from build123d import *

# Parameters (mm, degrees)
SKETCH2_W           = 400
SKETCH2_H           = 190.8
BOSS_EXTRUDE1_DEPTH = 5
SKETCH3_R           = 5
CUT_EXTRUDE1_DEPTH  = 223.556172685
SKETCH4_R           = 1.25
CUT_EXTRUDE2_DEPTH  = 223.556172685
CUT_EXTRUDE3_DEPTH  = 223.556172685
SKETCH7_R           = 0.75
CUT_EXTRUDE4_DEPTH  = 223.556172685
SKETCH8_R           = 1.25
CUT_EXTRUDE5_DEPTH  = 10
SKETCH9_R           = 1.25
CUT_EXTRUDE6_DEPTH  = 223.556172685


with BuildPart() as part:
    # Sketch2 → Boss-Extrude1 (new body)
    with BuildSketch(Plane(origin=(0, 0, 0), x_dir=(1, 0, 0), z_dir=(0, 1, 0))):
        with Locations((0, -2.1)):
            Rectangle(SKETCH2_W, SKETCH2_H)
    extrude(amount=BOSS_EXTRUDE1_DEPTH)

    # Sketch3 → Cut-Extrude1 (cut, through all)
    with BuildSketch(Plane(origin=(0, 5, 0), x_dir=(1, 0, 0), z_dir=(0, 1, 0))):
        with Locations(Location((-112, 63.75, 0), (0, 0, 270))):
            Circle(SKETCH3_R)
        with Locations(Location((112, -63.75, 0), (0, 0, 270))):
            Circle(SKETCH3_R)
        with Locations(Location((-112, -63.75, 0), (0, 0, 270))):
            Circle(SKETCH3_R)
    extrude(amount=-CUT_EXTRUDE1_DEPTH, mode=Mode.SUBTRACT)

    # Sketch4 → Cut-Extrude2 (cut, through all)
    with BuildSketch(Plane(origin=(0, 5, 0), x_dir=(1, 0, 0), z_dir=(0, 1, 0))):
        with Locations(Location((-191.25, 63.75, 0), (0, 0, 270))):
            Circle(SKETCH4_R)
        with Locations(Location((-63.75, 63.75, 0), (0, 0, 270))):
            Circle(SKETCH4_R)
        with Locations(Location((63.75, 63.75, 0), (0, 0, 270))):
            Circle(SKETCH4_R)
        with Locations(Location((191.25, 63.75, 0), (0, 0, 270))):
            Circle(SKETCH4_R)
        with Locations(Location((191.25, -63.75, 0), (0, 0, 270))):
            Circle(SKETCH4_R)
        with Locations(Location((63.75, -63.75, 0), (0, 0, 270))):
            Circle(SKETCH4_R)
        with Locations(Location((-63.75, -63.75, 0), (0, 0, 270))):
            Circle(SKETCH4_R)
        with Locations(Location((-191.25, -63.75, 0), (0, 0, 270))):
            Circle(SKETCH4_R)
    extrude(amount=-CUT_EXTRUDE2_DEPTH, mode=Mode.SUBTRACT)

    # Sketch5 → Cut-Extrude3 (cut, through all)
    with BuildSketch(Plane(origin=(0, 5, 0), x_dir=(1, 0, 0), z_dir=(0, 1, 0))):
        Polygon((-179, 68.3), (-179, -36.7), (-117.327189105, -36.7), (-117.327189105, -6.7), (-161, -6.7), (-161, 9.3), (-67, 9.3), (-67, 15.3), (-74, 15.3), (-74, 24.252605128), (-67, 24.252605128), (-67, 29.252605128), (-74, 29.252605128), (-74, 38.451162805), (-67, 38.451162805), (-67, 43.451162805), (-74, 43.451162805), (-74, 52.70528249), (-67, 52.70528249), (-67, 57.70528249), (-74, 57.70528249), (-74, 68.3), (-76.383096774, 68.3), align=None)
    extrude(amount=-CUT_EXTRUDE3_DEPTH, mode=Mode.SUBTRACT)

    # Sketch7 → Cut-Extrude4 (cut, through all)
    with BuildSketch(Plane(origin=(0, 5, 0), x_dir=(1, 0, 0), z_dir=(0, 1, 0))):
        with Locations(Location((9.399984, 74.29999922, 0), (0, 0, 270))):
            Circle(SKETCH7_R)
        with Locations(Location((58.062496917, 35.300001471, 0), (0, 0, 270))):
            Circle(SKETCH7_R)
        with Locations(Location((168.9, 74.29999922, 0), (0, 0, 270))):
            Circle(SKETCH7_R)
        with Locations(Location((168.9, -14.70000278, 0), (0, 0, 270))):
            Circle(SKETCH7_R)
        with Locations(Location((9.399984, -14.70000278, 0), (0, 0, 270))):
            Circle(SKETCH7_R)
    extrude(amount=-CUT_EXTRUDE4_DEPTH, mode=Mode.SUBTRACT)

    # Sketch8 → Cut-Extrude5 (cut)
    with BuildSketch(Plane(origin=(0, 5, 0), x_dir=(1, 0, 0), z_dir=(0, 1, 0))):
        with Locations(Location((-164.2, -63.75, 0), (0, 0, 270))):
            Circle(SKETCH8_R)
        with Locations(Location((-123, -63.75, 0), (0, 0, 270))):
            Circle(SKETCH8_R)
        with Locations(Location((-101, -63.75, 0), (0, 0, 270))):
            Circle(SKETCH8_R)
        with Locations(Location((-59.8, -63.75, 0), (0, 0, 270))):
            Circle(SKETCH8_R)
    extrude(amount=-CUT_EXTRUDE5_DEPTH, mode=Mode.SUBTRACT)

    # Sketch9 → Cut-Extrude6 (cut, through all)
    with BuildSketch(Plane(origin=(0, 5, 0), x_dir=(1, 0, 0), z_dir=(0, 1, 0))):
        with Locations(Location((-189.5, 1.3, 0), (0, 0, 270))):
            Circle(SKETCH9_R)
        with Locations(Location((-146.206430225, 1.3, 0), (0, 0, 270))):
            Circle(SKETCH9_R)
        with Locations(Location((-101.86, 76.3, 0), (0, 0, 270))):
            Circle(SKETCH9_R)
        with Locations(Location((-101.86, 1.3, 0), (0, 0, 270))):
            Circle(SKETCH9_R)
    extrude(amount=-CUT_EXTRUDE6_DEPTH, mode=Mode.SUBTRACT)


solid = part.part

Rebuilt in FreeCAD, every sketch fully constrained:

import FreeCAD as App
import Part
import Sketcher

V = App.Vector

doc = App.newDocument("Part")
body = doc.addObject("PartDesign::Body", "Body")

sketch1 = body.newObject("Sketcher::SketchObject", "Sketch")
sketch1.AttachmentSupport = (doc.getObject("XZ_Plane"), [""])
sketch1.MapMode = "FlatFace"
sketch1.addGeometry([
    Part.LineSegment(V(-200, -93, 0), V(-200, 98, 0)),
    Part.LineSegment(V(-200, 98, 0), V(200, 98, 0)),
    Part.LineSegment(V(200, 98, 0), V(200, -93, 0)),
    Part.LineSegment(V(200, -93, 0), V(-200, -93, 0)),
], False)
sketch1.addConstraint([
    Sketcher.Constraint("Coincident", 0, 2, 1, 1),
    Sketcher.Constraint("Coincident", 1, 2, 2, 1),
    Sketcher.Constraint("Coincident", 2, 2, 3, 1),
    Sketcher.Constraint("Coincident", 3, 2, 0, 1),
    Sketcher.Constraint("Vertical", 0),
    Sketcher.Constraint("Horizontal", 1),
    Sketcher.Constraint("Vertical", 2),
    Sketcher.Constraint("Horizontal", 3),
    Sketcher.Constraint("DistanceX", 1, 1, 1, 2, 400.0),
    Sketcher.Constraint("DistanceY", 0, 1, 0, 2, 190.8),
    Sketcher.Constraint("DistanceX", 0, 2, -1, 1, 200.0),
    Sketcher.Constraint("DistanceY", -1, 1, 0, 2, 97.5),
])
pad1 = body.newObject("PartDesign::Pad", "Pad")
pad1.Profile = sketch1
pad1.Length = 5
pad1.Reversed = True

sketch2 = body.newObject("Sketcher::SketchObject", "Sketch001")
sketch2.AttachmentSupport = (doc.getObject("XZ_Plane"), [""])
sketch2.MapMode = "FlatFace"
sketch2.AttachmentOffset = App.Placement(V(0, 0, -5), App.Rotation())
sketch2.addGeometry([
    Part.Circle(V(-112, -64, 0), V(0, 0, 1), 5),
    Part.Circle(V(112, 64, 0), V(0, 0, 1), 5),
    Part.Circle(V(-112, 64, 0), V(0, 0, 1), 5),
], False)
sketch2.addConstraint([
    Sketcher.Constraint("Equal", 0, 1),
    Sketcher.Constraint("Equal", 1, 2),
    Sketcher.Constraint("Symmetric", 0, 3, 1, 3, -1, 1),
    Sketcher.Constraint("Symmetric", 1, 3, 2, 3, -2),
    Sketcher.Constraint("Diameter", 0, 10.0),
    Sketcher.Constraint("DistanceX", 0, 3, -1, 1, 112.0),
    Sketcher.Constraint("DistanceY", 0, 3, 1, 3, 127.5),
])
pocket1 = body.newObject("PartDesign::Pocket", "Pocket")
pocket1.Profile = sketch2
pocket1.Type = "ThroughAll"
pocket1.Reversed = True

sketch3 = body.newObject("Sketcher::SketchObject", "Sketch002")
sketch3.AttachmentSupport = (doc.getObject("XZ_Plane"), [""])
sketch3.MapMode = "FlatFace"
sketch3.AttachmentOffset = App.Placement(V(0, 0, -5), App.Rotation())
sketch3.addGeometry([
    Part.Circle(V(-191.2, -63.8, 0), V(0, 0, 1), 1.2),
    Part.Circle(V(-63.8, -63.8, 0), V(0, 0, 1), 1.2),
    Part.Circle(V(63.8, -63.8, 0), V(0, 0, 1), 1.2),
    Part.Circle(V(191.2, -63.8, 0), V(0, 0, 1), 1.2),
    Part.Circle(V(191.2, 63.8, 0), V(0, 0, 1), 1.2),
    Part.Circle(V(63.8, 63.8, 0), V(0, 0, 1), 1.2),
    Part.Circle(V(-63.8, 63.8, 0), V(0, 0, 1), 1.2),
    Part.Circle(V(-191.2, 63.8, 0), V(0, 0, 1), 1.2),
], False)
sketch3.addConstraint([
    Sketcher.Constraint("Equal", 0, 1),
    Sketcher.Constraint("Equal", 1, 2),
    Sketcher.Constraint("Equal", 2, 3),
    Sketcher.Constraint("Equal", 3, 4),
    Sketcher.Constraint("Equal", 4, 5),
    Sketcher.Constraint("Equal", 5, 6),
    Sketcher.Constraint("Equal", 6, 7),
    Sketcher.Constraint("Symmetric", 0, 3, 4, 3, -1, 1),
    Sketcher.Constraint("Symmetric", 1, 3, 5, 3, -1, 1),
    Sketcher.Constraint("Symmetric", 2, 3, 6, 3, -1, 1),
    Sketcher.Constraint("Symmetric", 3, 3, 7, 3, -1, 1),
    Sketcher.Constraint("Symmetric", 1, 3, 2, 3, -2),
    Sketcher.Constraint("Symmetric", 0, 3, 3, 3, -2),
    Sketcher.Constraint("Horizontal", 0, 3, 1, 3),
    Sketcher.Constraint("Diameter", 0, 2.5),
    Sketcher.Constraint("DistanceX", 0, 3, 2, 3, 255.0),
    Sketcher.Constraint("DistanceX", 0, 3, 1, 3, 127.5),
    Sketcher.Constraint("DistanceY", 3, 3, 4, 3, 127.5),
])
pocket2 = body.newObject("PartDesign::Pocket", "Pocket001")
pocket2.Profile = sketch3
pocket2.Type = "ThroughAll"
pocket2.Reversed = True

sketch4 = body.newObject("Sketcher::SketchObject", "Sketch003")
sketch4.AttachmentSupport = (doc.getObject("XZ_Plane"), [""])
sketch4.MapMode = "FlatFace"
sketch4.AttachmentOffset = App.Placement(V(0, 0, -5), App.Rotation())
sketch4.addGeometry([
    Part.LineSegment(V(-179, -68, 0), V(-179, 37, 0)),
    Part.LineSegment(V(-179, 37, 0), V(-117, 37, 0)),
    Part.LineSegment(V(-117, 37, 0), V(-117, 7, 0)),
    Part.LineSegment(V(-117, 7, 0), V(-161, 7, 0)),
    Part.LineSegment(V(-161, 7, 0), V(-161, -9, 0)),
    Part.LineSegment(V(-161, -9, 0), V(-67, -9, 0)),
    Part.LineSegment(V(-67, -9, 0), V(-67, -15, 0)),
    Part.LineSegment(V(-67, -15, 0), V(-74, -15, 0)),
    Part.LineSegment(V(-74, -15, 0), V(-74, -24, 0)),
    Part.LineSegment(V(-74, -24, 0), V(-67, -24, 0)),
    Part.LineSegment(V(-67, -24, 0), V(-67, -29, 0)),
    Part.LineSegment(V(-67, -29, 0), V(-74, -29, 0)),
    Part.LineSegment(V(-74, -29, 0), V(-74, -38, 0)),
    Part.LineSegment(V(-74, -38, 0), V(-67, -38, 0)),
    Part.LineSegment(V(-67, -38, 0), V(-67, -43, 0)),
    Part.LineSegment(V(-67, -43, 0), V(-74, -43, 0)),
    Part.LineSegment(V(-74, -43, 0), V(-74, -53, 0)),
    Part.LineSegment(V(-74, -53, 0), V(-67, -53, 0)),
    Part.LineSegment(V(-67, -53, 0), V(-67, -58, 0)),
    Part.LineSegment(V(-67, -58, 0), V(-74, -58, 0)),
    Part.LineSegment(V(-74, -58, 0), V(-74, -68, 0)),
    Part.LineSegment(V(-74, -68, 0), V(-179, -68, 0)),
], False)
sketch4.addConstraint([
    Sketcher.Constraint("Coincident", 0, 2, 1, 1),
    Sketcher.Constraint("Coincident", 1, 2, 2, 1),
    Sketcher.Constraint("Coincident", 2, 2, 3, 1),
    Sketcher.Constraint("Coincident", 3, 2, 4, 1),
    Sketcher.Constraint("Coincident", 4, 2, 5, 1),
    Sketcher.Constraint("Coincident", 5, 2, 6, 1),
    Sketcher.Constraint("Coincident", 6, 2, 7, 1),
    Sketcher.Constraint("Coincident", 7, 2, 8, 1),
    Sketcher.Constraint("Coincident", 8, 2, 9, 1),
    Sketcher.Constraint("Coincident", 9, 2, 10, 1),
    Sketcher.Constraint("Coincident", 10, 2, 11, 1),
    Sketcher.Constraint("Coincident", 11, 2, 12, 1),
    Sketcher.Constraint("Coincident", 12, 2, 13, 1),
    Sketcher.Constraint("Coincident", 13, 2, 14, 1),
    Sketcher.Constraint("Coincident", 14, 2, 15, 1),
    Sketcher.Constraint("Coincident", 15, 2, 16, 1),
    Sketcher.Constraint("Coincident", 16, 2, 17, 1),
    Sketcher.Constraint("Coincident", 17, 2, 18, 1),
    Sketcher.Constraint("Coincident", 18, 2, 19, 1),
    Sketcher.Constraint("Coincident", 19, 2, 20, 1),
    Sketcher.Constraint("Coincident", 20, 2, 21, 1),
    Sketcher.Constraint("Coincident", 21, 2, 0, 1),
    Sketcher.Constraint("Vertical", 0),
    Sketcher.Constraint("Horizontal", 1),
    Sketcher.Constraint("Vertical", 2),
    Sketcher.Constraint("Horizontal", 3),
    Sketcher.Constraint("Vertical", 4),
    Sketcher.Constraint("Horizontal", 5),
    Sketcher.Constraint("Vertical", 6),
    Sketcher.Constraint("Horizontal", 7),
    Sketcher.Constraint("Vertical", 8),
    Sketcher.Constraint("Horizontal", 9),
    Sketcher.Constraint("Vertical", 10),
    Sketcher.Constraint("Horizontal", 11),
    Sketcher.Constraint("Vertical", 12),
    Sketcher.Constraint("Horizontal", 13),
    Sketcher.Constraint("Vertical", 14),
    Sketcher.Constraint("Horizontal", 15),
    Sketcher.Constraint("Vertical", 16),
    Sketcher.Constraint("Horizontal", 17),
    Sketcher.Constraint("Vertical", 18),
    Sketcher.Constraint("Horizontal", 19),
    Sketcher.Constraint("Vertical", 20),
    Sketcher.Constraint("Horizontal", 21),
    Sketcher.Constraint("Vertical", 6, 2, 9, 2),
    Sketcher.Constraint("Vertical", 8, 2, 11, 2),
    Sketcher.Constraint("Vertical", 10, 2, 13, 2),
    Sketcher.Constraint("Vertical", 12, 2, 15, 2),
    Sketcher.Constraint("Vertical", 14, 2, 17, 2),
    Sketcher.Constraint("Vertical", 16, 2, 19, 2),
    Sketcher.Constraint("Equal", 21, 0),
    Sketcher.Constraint("Equal", 10, 14),
    Sketcher.Constraint("Equal", 14, 18),
    Sketcher.Constraint("DistanceX", 5, 1, 5, 2, 94.0),
    Sketcher.Constraint("DistanceX", 7, 2, 7, 1, 7.0),
    Sketcher.Constraint("DistanceX", 21, 2, 21, 1, 105.0),
    Sketcher.Constraint("DistanceY", 2, 2, 2, 1, 30.0),
    Sketcher.Constraint("DistanceY", 4, 2, 4, 1, 16.0),
    Sketcher.Constraint("DistanceY", 6, 2, 6, 1, 6.0),
    Sketcher.Constraint("DistanceY", 10, 2, 10, 1, 5.0),
    Sketcher.Constraint("DistanceX", 0, 2, -1, 1, 179.0),
    Sketcher.Constraint("DistanceY", -1, 1, 0, 2, 36.7),
    Sketcher.Constraint("DistanceX", 1, 1, 1, 2, 61.672811),
    Sketcher.Constraint("DistanceY", 16, 2, 16, 1, 9.25412),
    Sketcher.Constraint("DistanceY", 8, 2, 8, 1, 8.952605),
    Sketcher.Constraint("DistanceY", 12, 2, 12, 1, 9.198558),
])
pocket3 = body.newObject("PartDesign::Pocket", "Pocket002")
pocket3.Profile = sketch4
pocket3.Type = "ThroughAll"
pocket3.Reversed = True

sketch5 = body.newObject("Sketcher::SketchObject", "Sketch004")
sketch5.AttachmentSupport = (doc.getObject("XZ_Plane"), [""])
sketch5.MapMode = "FlatFace"
sketch5.AttachmentOffset = App.Placement(V(0, 0, -5), App.Rotation())
sketch5.addGeometry([
    Part.Circle(V(9.4, -74.3, 0), V(0, 0, 1), 0.8),
    Part.Circle(V(58.1, -35.3, 0), V(0, 0, 1), 0.8),
    Part.Circle(V(168.9, -74.3, 0), V(0, 0, 1), 0.8),
    Part.Circle(V(168.9, 14.7, 0), V(0, 0, 1), 0.8),
    Part.Circle(V(9.4, 14.7, 0), V(0, 0, 1), 0.8),
], False)
sketch5.addConstraint([
    Sketcher.Constraint("Equal", 0, 1),
    Sketcher.Constraint("Equal", 1, 2),
    Sketcher.Constraint("Equal", 2, 3),
    Sketcher.Constraint("Equal", 3, 4),
    Sketcher.Constraint("Horizontal", 0, 3, 2, 3),
    Sketcher.Constraint("Horizontal", 3, 3, 4, 3),
    Sketcher.Constraint("Vertical", 2, 3, 3, 3),
    Sketcher.Constraint("Vertical", 0, 3, 4, 3),
    Sketcher.Constraint("Diameter", 0, 1.5),
    Sketcher.Constraint("DistanceY", 0, 3, -1, 1, 74.299999),
    Sketcher.Constraint("DistanceY", 1, 3, -1, 1, 35.300001),
    Sketcher.Constraint("DistanceX", -1, 1, 2, 3, 168.9),
    Sketcher.Constraint("DistanceX", -1, 1, 0, 3, 9.399984),
    Sketcher.Constraint("DistanceX", -1, 1, 1, 3, 58.062497),
    Sketcher.Constraint("DistanceY", -1, 1, 3, 3, 14.700003),
])
pocket4 = body.newObject("PartDesign::Pocket", "Pocket003")
pocket4.Profile = sketch5
pocket4.Type = "ThroughAll"
pocket4.Reversed = True

sketch6 = body.newObject("Sketcher::SketchObject", "Sketch005")
sketch6.AttachmentSupport = (doc.getObject("XZ_Plane"), [""])
sketch6.MapMode = "FlatFace"
sketch6.AttachmentOffset = App.Placement(V(0, 0, -5), App.Rotation())
sketch6.addGeometry([
    Part.Circle(V(-164.2, 63.8, 0), V(0, 0, 1), 1.2),
    Part.Circle(V(-123, 63.8, 0), V(0, 0, 1), 1.2),
    Part.Circle(V(-101, 63.8, 0), V(0, 0, 1), 1.2),
    Part.Circle(V(-59.8, 63.8, 0), V(0, 0, 1), 1.2),
], False)
sketch6.addConstraint([
    Sketcher.Constraint("Equal", 0, 1),
    Sketcher.Constraint("Equal", 1, 2),
    Sketcher.Constraint("Equal", 2, 3),
    Sketcher.Constraint("Horizontal", 0, 3, 1, 3),
    Sketcher.Constraint("Horizontal", 1, 3, 2, 3),
    Sketcher.Constraint("Horizontal", 2, 3, 3, 3),
    Sketcher.Constraint("Diameter", 0, 2.5),
    Sketcher.Constraint("DistanceX", 1, 3, -1, 1, 123.0),
    Sketcher.Constraint("DistanceX", 2, 3, -1, 1, 101.0),
    Sketcher.Constraint("DistanceX", 0, 3, -1, 1, 164.2),
    Sketcher.Constraint("DistanceX", 3, 3, -1, 1, 59.8),
    Sketcher.Constraint("DistanceY", -1, 1, 0, 3, 63.75),
])
pocket5 = body.newObject("PartDesign::Pocket", "Pocket004")
pocket5.Profile = sketch6
pocket5.Length = 10
pocket5.Reversed = True

sketch7 = body.newObject("Sketcher::SketchObject", "Sketch006")
sketch7.AttachmentSupport = (doc.getObject("XZ_Plane"), [""])
sketch7.MapMode = "FlatFace"
sketch7.AttachmentOffset = App.Placement(V(0, 0, -5), App.Rotation())
sketch7.addGeometry([
    Part.Circle(V(-189.5, -1.3, 0), V(0, 0, 1), 1.2),
    Part.Circle(V(-146.2, -1.3, 0), V(0, 0, 1), 1.2),
    Part.Circle(V(-101.9, -76.3, 0), V(0, 0, 1), 1.2),
    Part.Circle(V(-101.9, -1.3, 0), V(0, 0, 1), 1.2),
], False)
sketch7.addConstraint([
    Sketcher.Constraint("Equal", 0, 1),
    Sketcher.Constraint("Equal", 1, 2),
    Sketcher.Constraint("Equal", 2, 3),
    Sketcher.Constraint("Horizontal", 0, 3, 1, 3),
    Sketcher.Constraint("Horizontal", 1, 3, 3, 3),
    Sketcher.Constraint("Vertical", 2, 3, 3, 3),
    Sketcher.Constraint("Diameter", 0, 2.5),
    Sketcher.Constraint("DistanceY", 2, 3, 1, 3, 75.0),
    Sketcher.Constraint("DistanceX", 0, 3, -1, 1, 189.5),
    Sketcher.Constraint("DistanceY", 0, 3, -1, 1, 1.3),
    Sketcher.Constraint("DistanceX", 2, 3, -1, 1, 101.86),
    Sketcher.Constraint("DistanceX", 1, 3, -1, 1, 146.20643),
])
pocket6 = body.newObject("PartDesign::Pocket", "Pocket005")
pocket6.Profile = sketch7
pocket6.Type = "ThroughAll"
pocket6.Reversed = True

doc.recompute()
